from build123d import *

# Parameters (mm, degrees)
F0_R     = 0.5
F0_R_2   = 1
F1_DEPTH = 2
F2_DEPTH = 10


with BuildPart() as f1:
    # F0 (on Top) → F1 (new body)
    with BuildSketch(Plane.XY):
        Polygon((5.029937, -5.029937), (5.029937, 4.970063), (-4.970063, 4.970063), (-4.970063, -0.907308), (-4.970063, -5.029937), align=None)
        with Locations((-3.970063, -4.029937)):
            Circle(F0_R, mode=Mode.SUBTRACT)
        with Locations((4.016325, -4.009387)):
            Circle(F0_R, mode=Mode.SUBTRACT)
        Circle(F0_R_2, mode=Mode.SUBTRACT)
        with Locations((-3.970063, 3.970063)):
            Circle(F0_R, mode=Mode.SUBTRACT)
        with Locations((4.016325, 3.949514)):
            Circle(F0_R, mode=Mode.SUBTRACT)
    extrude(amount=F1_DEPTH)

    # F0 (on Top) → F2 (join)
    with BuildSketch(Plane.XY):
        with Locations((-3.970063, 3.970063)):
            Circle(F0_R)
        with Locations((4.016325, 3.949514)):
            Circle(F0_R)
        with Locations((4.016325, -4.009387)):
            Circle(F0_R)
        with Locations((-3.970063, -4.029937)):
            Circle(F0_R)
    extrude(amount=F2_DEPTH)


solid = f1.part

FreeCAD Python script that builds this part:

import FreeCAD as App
import Part
import Sketcher

V = App.Vector

doc = App.newDocument("Part")
params = doc.addObject("Spreadsheet::Sheet", "Params")
for row, (alias, value) in enumerate([
    ("sketch1_diameter", "1 mm"),
    ("sketch1_diameter2", "2 mm"),
    ("sketch1_width", "10 mm"),
    ("pad1_length", "2 mm"),
    ("sketch2_diameter", "1 mm"),
    ("pad2_length", "10 mm"),
], start=1):
    params.set(f"A{row}", alias)
    params.set(f"B{row}", "=" + value)
    params.setAlias(f"B{row}", alias)

body = doc.addObject("PartDesign::Body", "Body")

# Sketch on XY plane
sketch1 = body.newObject("Sketcher::SketchObject", "Sketch")
sketch1.AttachmentSupport = (doc.getObject("XY_Plane"), [""])
sketch1.MapMode = "FlatFace"
sketch1.addGeometry([
    Part.LineSegment(V(5, -5, 0), V(5, 5, 0)),  # 0
    Part.LineSegment(V(5, 5, 0), V(-5, 5, 0)),  # 1
    Part.LineSegment(V(-5, 5, 0), V(-5, -5, 0)),  # 2
    Part.LineSegment(V(-5, -5, 0), V(5, -5, 0)),  # 3
    Part.Circle(V(-4, -4, 0), V(0, 0, 1), 0.5),  # 4
    Part.Circle(V(4, -4, 0), V(0, 0, 1), 0.5),  # 5
    Part.Circle(V(0, 0, 0), V(0, 0, 1), 1),  # 6
    Part.Circle(V(-4, 4, 0), V(0, 0, 1), 0.5),  # 7
    Part.Circle(V(4, 3.9, 0), V(0, 0, 1), 0.5),  # 8
], False)
sketch1.addConstraint([
    Sketcher.Constraint("Coincident", 0, 2, 1, 1),
    Sketcher.Constraint("Coincident", 1, 2, 2, 1),
    Sketcher.Constraint("Coincident", 2, 2, 3, 1),
    Sketcher.Constraint("Coincident", 3, 2, 0, 1),
    Sketcher.Constraint("Vertical", 0),
    Sketcher.Constraint("Horizontal", 1),
    Sketcher.Constraint("Vertical", 2),
    Sketcher.Constraint("Horizontal", 3),
    Sketcher.Constraint("Coincident", 6, 3, -1, 1),
    Sketcher.Constraint("Equal", 4, 5),
    Sketcher.Constraint("Equal", 5, 7),
    Sketcher.Constraint("Equal", 7, 8),
    Sketcher.Constraint("Vertical", 4, 3, 7, 3),
    Sketcher.Constraint("Vertical", 5, 3, 8, 3),
    Sketcher.Constraint("Equal", 3, 0),
    Sketcher.Constraint("Diameter", 4, 1.0),
    Sketcher.Constraint("Diameter", 6, 2.0),
    Sketcher.Constraint("DistanceX", 1, 2, 1, 1, 10.0),
    Sketcher.Constraint("DistanceY", 4, 3, 7, 3, 8.0),
    Sketcher.Constraint("DistanceX", 7, 3, 0, 2, 9.0),
    Sketcher.Constraint("DistanceY", 7, 3, 0, 2, 1.0),
    Sketcher.Constraint("DistanceY", 5, 3, 8, 3, 7.958901),
    Sketcher.Constraint("DistanceY", 4, 3, 5, 3, 0.02055),
    Sketcher.Constraint("DistanceX", 4, 3, -1, 1, 3.970063),
    Sketcher.Constraint("DistanceY", 4, 3, -1, 1, 4.029937),
    Sketcher.Constraint("DistanceX", -1, 1, 5, 3, 4.016325),
])
sketch1.setExpression("Constraints[15]", "Params.sketch1_diameter")
sketch1.setExpression("Constraints[16]", "Params.sketch1_diameter2")
sketch1.setExpression("Constraints[17]", "Params.sketch1_width")
pad1 = body.newObject("PartDesign::Pad", "Pad")
pad1.Profile = sketch1
pad1.setExpression("Length", "Params.pad1_length")

# Sketch on XY plane
sketch2 = body.newObject("Sketcher::SketchObject", "Sketch001")
sketch2.AttachmentSupport = (doc.getObject("XY_Plane"), [""])
sketch2.MapMode = "FlatFace"
sketch2.addGeometry([
    Part.Circle(V(-4, 4, 0), V(0, 0, 1), 0.5),
    Part.Circle(V(4, 3.9, 0), V(0, 0, 1), 0.5),
    Part.Circle(V(4, -4, 0), V(0, 0, 1), 0.5),
    Part.Circle(V(-4, -4, 0), V(0, 0, 1), 0.5),
], False)
sketch2.addConstraint([
    Sketcher.Constraint("Equal", 0, 1),
    Sketcher.Constraint("Equal", 1, 2),
    Sketcher.Constraint("Equal", 2, 3),
    Sketcher.Constraint("Vertical", 1, 3, 2, 3),
    Sketcher.Constraint("Vertical", 0, 3, 3, 3),
    Sketcher.Constraint("Diameter", 0, 1.0),
    Sketcher.Constraint("DistanceY", 3, 3, 0, 3, 8.0),
    Sketcher.Constraint("DistanceY", 2, 3, 1, 3, 7.958901),
    Sketcher.Constraint("DistanceY", 1, 3, 0, 3, 0.020549),
    Sketcher.Constraint("DistanceX", 0, 3, -1, 1, 3.970063),
    Sketcher.Constraint("DistanceY", -1, 1, 0, 3, 3.970063),
    Sketcher.Constraint("DistanceX", -1, 1, 1, 3, 4.016325),
])
sketch2.setExpression("Constraints[5]", "Params.sketch2_diameter")
pad2 = body.newObject("PartDesign::Pad", "Pad001")
pad2.Profile = sketch2
pad2.setExpression("Length", "Params.pad2_length")

doc.recompute()
